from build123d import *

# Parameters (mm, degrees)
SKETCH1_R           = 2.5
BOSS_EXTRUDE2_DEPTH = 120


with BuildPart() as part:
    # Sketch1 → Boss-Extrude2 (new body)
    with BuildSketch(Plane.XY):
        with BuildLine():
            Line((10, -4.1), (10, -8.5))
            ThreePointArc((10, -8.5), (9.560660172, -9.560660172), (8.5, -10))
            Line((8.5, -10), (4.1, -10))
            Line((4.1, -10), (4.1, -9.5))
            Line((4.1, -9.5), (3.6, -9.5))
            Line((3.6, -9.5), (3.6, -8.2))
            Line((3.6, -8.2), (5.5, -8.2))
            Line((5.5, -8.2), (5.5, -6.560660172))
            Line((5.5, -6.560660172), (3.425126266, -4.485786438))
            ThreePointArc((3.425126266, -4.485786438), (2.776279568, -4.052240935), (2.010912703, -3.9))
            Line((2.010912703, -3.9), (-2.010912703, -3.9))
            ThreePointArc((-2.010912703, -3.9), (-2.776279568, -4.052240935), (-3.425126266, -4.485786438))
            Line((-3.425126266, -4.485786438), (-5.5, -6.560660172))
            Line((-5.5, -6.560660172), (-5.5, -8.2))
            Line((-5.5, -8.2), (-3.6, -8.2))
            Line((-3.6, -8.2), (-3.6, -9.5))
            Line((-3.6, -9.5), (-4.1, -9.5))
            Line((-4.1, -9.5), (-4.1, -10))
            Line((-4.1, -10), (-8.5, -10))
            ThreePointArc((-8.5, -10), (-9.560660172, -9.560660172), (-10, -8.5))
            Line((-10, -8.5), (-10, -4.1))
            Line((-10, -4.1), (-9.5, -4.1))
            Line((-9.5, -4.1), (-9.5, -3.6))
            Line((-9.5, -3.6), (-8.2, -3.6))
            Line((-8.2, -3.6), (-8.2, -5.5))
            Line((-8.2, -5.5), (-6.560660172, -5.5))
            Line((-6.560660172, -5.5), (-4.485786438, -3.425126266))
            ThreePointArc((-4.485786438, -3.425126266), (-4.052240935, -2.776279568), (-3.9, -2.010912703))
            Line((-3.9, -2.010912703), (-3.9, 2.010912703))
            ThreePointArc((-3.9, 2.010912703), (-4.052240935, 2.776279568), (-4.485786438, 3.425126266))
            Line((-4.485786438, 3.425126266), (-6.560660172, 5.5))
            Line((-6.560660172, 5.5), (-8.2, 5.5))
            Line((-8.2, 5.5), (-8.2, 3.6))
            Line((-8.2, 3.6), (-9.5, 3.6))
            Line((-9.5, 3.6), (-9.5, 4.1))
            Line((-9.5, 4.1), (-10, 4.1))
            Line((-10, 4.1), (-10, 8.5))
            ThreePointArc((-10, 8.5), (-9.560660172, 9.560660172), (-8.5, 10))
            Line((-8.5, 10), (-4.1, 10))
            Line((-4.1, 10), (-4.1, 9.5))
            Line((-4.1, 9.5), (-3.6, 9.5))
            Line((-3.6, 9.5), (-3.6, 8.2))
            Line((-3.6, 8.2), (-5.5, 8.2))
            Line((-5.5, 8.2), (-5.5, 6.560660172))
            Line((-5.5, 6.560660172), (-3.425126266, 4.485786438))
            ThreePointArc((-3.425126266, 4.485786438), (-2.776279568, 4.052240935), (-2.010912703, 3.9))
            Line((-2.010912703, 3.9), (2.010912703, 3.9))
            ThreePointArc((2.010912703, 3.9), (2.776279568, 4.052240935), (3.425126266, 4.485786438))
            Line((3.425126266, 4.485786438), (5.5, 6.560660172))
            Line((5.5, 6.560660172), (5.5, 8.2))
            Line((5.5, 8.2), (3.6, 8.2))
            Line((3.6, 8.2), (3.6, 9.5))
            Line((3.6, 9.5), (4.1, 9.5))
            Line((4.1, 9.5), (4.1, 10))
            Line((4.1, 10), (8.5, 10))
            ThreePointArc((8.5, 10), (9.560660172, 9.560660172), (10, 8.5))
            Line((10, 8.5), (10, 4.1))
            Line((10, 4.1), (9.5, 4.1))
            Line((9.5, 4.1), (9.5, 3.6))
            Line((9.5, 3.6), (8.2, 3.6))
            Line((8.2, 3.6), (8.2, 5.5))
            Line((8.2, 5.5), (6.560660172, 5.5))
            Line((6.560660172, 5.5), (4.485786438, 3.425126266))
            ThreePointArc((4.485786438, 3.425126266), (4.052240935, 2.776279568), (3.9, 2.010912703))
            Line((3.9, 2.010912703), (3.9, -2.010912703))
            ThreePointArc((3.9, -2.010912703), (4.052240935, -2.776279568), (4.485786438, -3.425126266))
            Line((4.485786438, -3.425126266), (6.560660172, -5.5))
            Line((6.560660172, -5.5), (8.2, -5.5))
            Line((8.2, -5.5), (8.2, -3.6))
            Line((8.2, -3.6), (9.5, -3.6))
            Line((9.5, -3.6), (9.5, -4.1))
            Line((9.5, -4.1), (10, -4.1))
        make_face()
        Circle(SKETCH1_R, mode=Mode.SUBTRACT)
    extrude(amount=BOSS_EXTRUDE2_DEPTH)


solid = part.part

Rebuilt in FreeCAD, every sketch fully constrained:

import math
import FreeCAD as App
import Part
import Sketcher
from FreeCAD import Vector
Q = App.Units.Quantity

doc = App.newDocument("Part")
body = doc.addObject("PartDesign::Body", "Body")

# Sketch on XY plane
sketch1 = body.newObject("Sketcher::SketchObject", "Sketch")
sketch1.AttachmentSupport = (doc.getObject("XY_Plane"), [""])
sketch1.MapMode = "FlatFace"
sketch1.addGeometry([
    Part.LineSegment(Vector(10, -8.5, 0), Vector(10, -4.1, 0)),  # 0
    Part.LineSegment(Vector(10, -4.1, 0), Vector(9.5, -4.1, 0)),  # 1
    Part.LineSegment(Vector(9.5, -4.1, 0), Vector(9.5, -3.6, 0)),  # 2
    Part.LineSegment(Vector(9.5, -3.6, 0), Vector(8.2, -3.6, 0)),  # 3
    Part.LineSegment(Vector(8.2, -3.6, 0), Vector(8.2, -5.5, 0)),  # 4
    Part.LineSegment(Vector(8.2, -5.5, 0), Vector(6.56066, -5.5, 0)),  # 5
    Part.LineSegment(Vector(6.56066, -5.5, 0), Vector(4.485786, -3.425126, 0)),  # 6
    Part.ArcOfCircle(Part.Circle(Vector(5.9, -2.010913, 0), Vector(0, 0, 1), 2), math.radians(180), math.radians(225)),  # 7
    Part.LineSegment(Vector(3.9, -2.010913, 0), Vector(3.9, 2.010913, 0)),  # 8
    Part.ArcOfCircle(Part.Circle(Vector(5.9, 2.010913, 0), Vector(0, 0, 1), 2), math.radians(135), math.radians(180)),  # 9
    Part.LineSegment(Vector(4.485786, 3.425126, 0), Vector(6.56066, 5.5, 0)),  # 10
    Part.LineSegment(Vector(6.56066, 5.5, 0), Vector(8.2, 5.5, 0)),  # 11
    Part.LineSegment(Vector(8.2, 5.5, 0), Vector(8.2, 3.6, 0)),  # 12
    Part.LineSegment(Vector(8.2, 3.6, 0), Vector(9.5, 3.6, 0)),  # 13
    Part.LineSegment(Vector(9.5, 3.6, 0), Vector(9.5, 4.1, 0)),  # 14
    Part.LineSegment(Vector(9.5, 4.1, 0), Vector(10, 4.1, 0)),  # 15
    Part.LineSegment(Vector(10, 4.1, 0), Vector(10, 8.5, 0)),  # 16
    Part.ArcOfCircle(Part.Circle(Vector(8.5, 8.5, 0), Vector(0, 0, 1), 1.5), math.radians(0), math.radians(90)),  # 17
    Part.LineSegment(Vector(8.5, 10, 0), Vector(4.1, 10, 0)),  # 18
    Part.LineSegment(Vector(4.1, 10, 0), Vector(4.1, 9.5, 0)),  # 19
    Part.LineSegment(Vector(4.1, 9.5, 0), Vector(3.6, 9.5, 0)),  # 20
    Part.LineSegment(Vector(3.6, 9.5, 0), Vector(3.6, 8.2, 0)),  # 21
    Part.LineSegment(Vector(3.6, 8.2, 0), Vector(5.5, 8.2, 0)),  # 22
    Part.LineSegment(Vector(5.5, 8.2, 0), Vector(5.5, 6.56066, 0)),  # 23
    Part.LineSegment(Vector(5.5, 6.56066, 0), Vector(3.425126, 4.485786, 0)),  # 24
    Part.ArcOfCircle(Part.Circle(Vector(2.010913, 5.9, 0), Vector(0, 0, 1), 2), math.radians(-90), math.radians(-45)),  # 25
    Part.LineSegment(Vector(2.010913, 3.9, 0), Vector(-2.010913, 3.9, 0)),  # 26
    Part.ArcOfCircle(Part.Circle(Vector(-2.010913, 5.9, 0), Vector(0, 0, 1), 2), math.radians(-135), math.radians(-90)),  # 27
    Part.LineSegment(Vector(-3.425126, 4.485786, 0), Vector(-5.5, 6.56066, 0)),  # 28
    Part.LineSegment(Vector(-5.5, 6.56066, 0), Vector(-5.5, 8.2, 0)),  # 29
    Part.LineSegment(Vector(-5.5, 8.2, 0), Vector(-3.6, 8.2, 0)),  # 30
    Part.LineSegment(Vector(-3.6, 8.2, 0), Vector(-3.6, 9.5, 0)),  # 31
    Part.LineSegment(Vector(-3.6, 9.5, 0), Vector(-4.1, 9.5, 0)),  # 32
    Part.LineSegment(Vector(-4.1, 9.5, 0), Vector(-4.1, 10, 0)),  # 33
    Part.LineSegment(Vector(-4.1, 10, 0), Vector(-8.5, 10, 0)),  # 34
    Part.ArcOfCircle(Part.Circle(Vector(-8.5, 8.5, 0), Vector(0, 0, 1), 1.5), math.radians(90), math.radians(180)),  # 35
    Part.LineSegment(Vector(-10, 8.5, 0), Vector(-10, 4.1, 0)),  # 36
    Part.LineSegment(Vector(-10, 4.1, 0), Vector(-9.5, 4.1, 0)),  # 37
    Part.LineSegment(Vector(-9.5, 4.1, 0), Vector(-9.5, 3.6, 0)),  # 38
    Part.LineSegment(Vector(-9.5, 3.6, 0), Vector(-8.2, 3.6, 0)),  # 39
    Part.LineSegment(Vector(-8.2, 3.6, 0), Vector(-8.2, 5.5, 0)),  # 40
    Part.LineSegment(Vector(-8.2, 5.5, 0), Vector(-6.56066, 5.5, 0)),  # 41
    Part.LineSegment(Vector(-6.56066, 5.5, 0), Vector(-4.485786, 3.425126, 0)),  # 42
    Part.ArcOfCircle(Part.Circle(Vector(-5.9, 2.010913, 0), Vector(0, 0, 1), 2), math.radians(0), math.radians(45)),  # 43
    Part.LineSegment(Vector(-3.9, 2.010913, 0), Vector(-3.9, -2.010913, 0)),  # 44
    Part.ArcOfCircle(Part.Circle(Vector(-5.9, -2.010913, 0), Vector(0, 0, 1), 2), math.radians(-45), math.radians(0)),  # 45
    Part.LineSegment(Vector(-4.485786, -3.425126, 0), Vector(-6.56066, -5.5, 0)),  # 46
    Part.LineSegment(Vector(-6.56066, -5.5, 0), Vector(-8.2, -5.5, 0)),  # 47
    Part.LineSegment(Vector(-8.2, -5.5, 0), Vector(-8.2, -3.6, 0)),  # 48
    Part.LineSegment(Vector(-8.2, -3.6, 0), Vector(-9.5, -3.6, 0)),  # 49
    Part.LineSegment(Vector(-9.5, -3.6, 0), Vector(-9.5, -4.1, 0)),  # 50
    Part.LineSegment(Vector(-9.5, -4.1, 0), Vector(-10, -4.1, 0)),  # 51
    Part.LineSegment(Vector(-10, -4.1, 0), Vector(-10, -8.5, 0)),  # 52
    Part.ArcOfCircle(Part.Circle(Vector(-8.5, -8.5, 0), Vector(0, 0, 1), 1.5), math.radians(180), math.radians(270)),  # 53
    Part.LineSegment(Vector(-8.5, -10, 0), Vector(-4.1, -10, 0)),  # 54
    Part.LineSegment(Vector(-4.1, -10, 0), Vector(-4.1, -9.5, 0)),  # 55
    Part.LineSegment(Vector(-4.1, -9.5, 0), Vector(-3.6, -9.5, 0)),  # 56
    Part.LineSegment(Vector(-3.6, -9.5, 0), Vector(-3.6, -8.2, 0)),  # 57
    Part.LineSegment(Vector(-3.6, -8.2, 0), Vector(-5.5, -8.2, 0)),  # 58
    Part.LineSegment(Vector(-5.5, -8.2, 0), Vector(-5.5, -6.56066, 0)),  # 59
    Part.LineSegment(Vector(-5.5, -6.56066, 0), Vector(-3.425126, -4.485786, 0)),  # 60
    Part.ArcOfCircle(Part.Circle(Vector(-2.010913, -5.9, 0), Vector(0, 0, 1), 2), math.radians(90), math.radians(135)),  # 61
    Part.LineSegment(Vector(-2.010913, -3.9, 0), Vector(2.010913, -3.9, 0)),  # 62
    Part.ArcOfCircle(Part.Circle(Vector(2.010913, -5.9, 0), Vector(0, 0, 1), 2), math.radians(45), math.radians(90)),  # 63
    Part.LineSegment(Vector(3.425126, -4.485786, 0), Vector(5.5, -6.56066, 0)),  # 64
    Part.LineSegment(Vector(5.5, -6.56066, 0), Vector(5.5, -8.2, 0)),  # 65
    Part.LineSegment(Vector(5.5, -8.2, 0), Vector(3.6, -8.2, 0)),  # 66
    Part.LineSegment(Vector(3.6, -8.2, 0), Vector(3.6, -9.5, 0)),  # 67
    Part.LineSegment(Vector(3.6, -9.5, 0), Vector(4.1, -9.5, 0)),  # 68
    Part.LineSegment(Vector(4.1, -9.5, 0), Vector(4.1, -10, 0)),  # 69
    Part.LineSegment(Vector(4.1, -10, 0), Vector(8.5, -10, 0)),  # 70
    Part.ArcOfCircle(Part.Circle(Vector(8.5, -8.5, 0), Vector(0, 0, 1), 1.5), math.radians(-90), math.radians(0)),  # 71
    Part.Circle(Vector(0, 0, 0), Vector(0, 0, 1), 2.5),  # 72
], False)
sketch1.addConstraint([
    Sketcher.Constraint("Coincident", 0, 2, 1, 1),
    Sketcher.Constraint("Coincident", 1, 2, 2, 1),
    Sketcher.Constraint("Coincident", 2, 2, 3, 1),
    Sketcher.Constraint("Coincident", 3, 2, 4, 1),
    Sketcher.Constraint("Coincident", 4, 2, 5, 1),
    Sketcher.Constraint("Coincident", 5, 2, 6, 1),
    Sketcher.Constraint("Tangent", 6, 2, 7, 2),
    Sketcher.Constraint("Tangent", 7, 1, 8, 1),
    Sketcher.Constraint("Tangent", 8, 2, 9, 2),
    Sketcher.Constraint("Tangent", 9, 1, 10, 1),
    Sketcher.Constraint("Coincident", 10, 2, 11, 1),
    Sketcher.Constraint("Coincident", 11, 2, 12, 1),
    Sketcher.Constraint("Coincident", 12, 2, 13, 1),
    Sketcher.Constraint("Coincident", 13, 2, 14, 1),
    Sketcher.Constraint("Coincident", 14, 2, 15, 1),
    Sketcher.Constraint("Coincident", 15, 2, 16, 1),
    Sketcher.Constraint("Tangent", 16, 2, 17, 1),
    Sketcher.Constraint("Tangent", 17, 2, 18, 1),
    Sketcher.Constraint("Coincident", 18, 2, 19, 1),
    Sketcher.Constraint("Coincident", 19, 2, 20, 1),
    Sketcher.Constraint("Coincident", 20, 2, 21, 1),
    Sketcher.Constraint("Coincident", 21, 2, 22, 1),
    Sketcher.Constraint("Coincident", 22, 2, 23, 1),
    Sketcher.Constraint("Coincident", 23, 2, 24, 1),
    Sketcher.Constraint("Tangent", 24, 2, 25, 2),
    Sketcher.Constraint("Tangent", 25, 1, 26, 1),
    Sketcher.Constraint("Tangent", 26, 2, 27, 2),
    Sketcher.Constraint("Tangent", 27, 1, 28, 1),
    Sketcher.Constraint("Coincident", 28, 2, 29, 1),
    Sketcher.Constraint("Coincident", 29, 2, 30, 1),
    Sketcher.Constraint("Coincident", 30, 2, 31, 1),
    Sketcher.Constraint("Coincident", 31, 2, 32, 1),
    Sketcher.Constraint("Coincident", 32, 2, 33, 1),
    Sketcher.Constraint("Coincident", 33, 2, 34, 1),
    Sketcher.Constraint("Tangent", 34, 2, 35, 1),
    Sketcher.Constraint("Tangent", 35, 2, 36, 1),
    Sketcher.Constraint("Coincident", 36, 2, 37, 1),
    Sketcher.Constraint("Coincident", 37, 2, 38, 1),
    Sketcher.Constraint("Coincident", 38, 2, 39, 1),
    Sketcher.Constraint("Coincident", 39, 2, 40, 1),
    Sketcher.Constraint("Coincident", 40, 2, 41, 1),
    Sketcher.Constraint("Coincident", 41, 2, 42, 1),
    Sketcher.Constraint("Tangent", 42, 2, 43, 2),
    Sketcher.Constraint("Tangent", 43, 1, 44, 1),
    Sketcher.Constraint("Tangent", 44, 2, 45, 2),
    Sketcher.Constraint("Tangent", 45, 1, 46, 1),
    Sketcher.Constraint("Coincident", 46, 2, 47, 1),
    Sketcher.Constraint("Coincident", 47, 2, 48, 1),
    Sketcher.Constraint("Coincident", 48, 2, 49, 1),
    Sketcher.Constraint("Coincident", 49, 2, 50, 1),
    Sketcher.Constraint("Coincident", 50, 2, 51, 1),
    Sketcher.Constraint("Coincident", 51, 2, 52, 1),
    Sketcher.Constraint("Tangent", 52, 2, 53, 1),
    Sketcher.Constraint("Tangent", 53, 2, 54, 1),
    Sketcher.Constraint("Coincident", 54, 2, 55, 1),
    Sketcher.Constraint("Coincident", 55, 2, 56, 1),
    Sketcher.Constraint("Coincident", 56, 2, 57, 1),
    Sketcher.Constraint("Coincident", 57, 2, 58, 1),
    Sketcher.Constraint("Coincident", 58, 2, 59, 1),
    Sketcher.Constraint("Coincident", 59, 2, 60, 1),
    Sketcher.Constraint("Tangent", 60, 2, 61, 2),
    Sketcher.Constraint("Tangent", 61, 1, 62, 1),
    Sketcher.Constraint("Tangent", 62, 2, 63, 2),
    Sketcher.Constraint("Tangent", 63, 1, 64, 1),
    Sketcher.Constraint("Coincident", 64, 2, 65, 1),
    Sketcher.Constraint("Coincident", 65, 2, 66, 1),
    Sketcher.Constraint("Coincident", 66, 2, 67, 1),
    Sketcher.Constraint("Coincident", 67, 2, 68, 1),
    Sketcher.Constraint("Coincident", 68, 2, 69, 1),
    Sketcher.Constraint("Coincident", 69, 2, 70, 1),
    Sketcher.Constraint("Tangent", 70, 2, 71, 1),
    Sketcher.Constraint("Tangent", 71, 2, 0, 1),
    Sketcher.Constraint("Vertical", 0),
    Sketcher.Constraint("Horizontal", 1),
    Sketcher.Constraint("Vertical", 2),
    Sketcher.Constraint("Horizontal", 3),
    Sketcher.Constraint("Vertical", 4),
    Sketcher.Constraint("Horizontal", 5),
    Sketcher.Constraint("Vertical", 8),
    Sketcher.Constraint("Horizontal", 11),
    Sketcher.Constraint("Vertical", 12),
    Sketcher.Constraint("Horizontal", 13),
    Sketcher.Constraint("Vertical", 14),
    Sketcher.Constraint("Horizontal", 15),
    Sketcher.Constraint("Vertical", 16),
    Sketcher.Constraint("Horizontal", 18),
    Sketcher.Constraint("Vertical", 19),
    Sketcher.Constraint("Horizontal", 20),
    Sketcher.Constraint("Vertical", 21),
    Sketcher.Constraint("Horizontal", 22),
    Sketcher.Constraint("Vertical", 23),
    Sketcher.Constraint("Horizontal", 26),
    Sketcher.Constraint("Vertical", 29),
    Sketcher.Constraint("Horizontal", 30),
    Sketcher.Constraint("Vertical", 31),
    Sketcher.Constraint("Horizontal", 32),
    Sketcher.Constraint("Vertical", 33),
    Sketcher.Constraint("Horizontal", 34),
    Sketcher.Constraint("Vertical", 36),
    Sketcher.Constraint("Horizontal", 37),
    Sketcher.Constraint("Vertical", 38),
    Sketcher.Constraint("Horizontal", 39),
    Sketcher.Constraint("Vertical", 40),
    Sketcher.Constraint("Horizontal", 41),
    Sketcher.Constraint("Vertical", 44),
    Sketcher.Constraint("Horizontal", 47),
    Sketcher.Constraint("Vertical", 48),
    Sketcher.Constraint("Horizontal", 49),
    Sketcher.Constraint("Vertical", 50),
    Sketcher.Constraint("Horizontal", 51),
    Sketcher.Constraint("Vertical", 52),
    Sketcher.Constraint("Horizontal", 54),
    Sketcher.Constraint("Vertical", 55),
    Sketcher.Constraint("Horizontal", 56),
    Sketcher.Constraint("Vertical", 57),
    Sketcher.Constraint("Horizontal", 58),
    Sketcher.Constraint("Vertical", 59),
    Sketcher.Constraint("Horizontal", 62),
    Sketcher.Constraint("Vertical", 65),
    Sketcher.Constraint("Horizontal", 66),
    Sketcher.Constraint("Vertical", 67),
    Sketcher.Constraint("Horizontal", 68),
    Sketcher.Constraint("Vertical", 69),
    Sketcher.Constraint("Horizontal", 70),
    Sketcher.Constraint("Coincident", 72, 3, -1, 1),
    Sketcher.Constraint("Equal", 7, 9),
    Sketcher.Constraint("Equal", 9, 25),
    Sketcher.Constraint("Equal", 25, 27),
    Sketcher.Constraint("Equal", 17, 35),
    Sketcher.Constraint("Equal", 27, 43),
    Sketcher.Constraint("Equal", 43, 45),
    Sketcher.Constraint("Equal", 35, 53),
    Sketcher.Constraint("Equal", 45, 61),
    Sketcher.Constraint("Equal", 61, 63),
    Sketcher.Constraint("Equal", 53, 71),
    Sketcher.Constraint("Symmetric", 7, 3, 43, 3, -1, 1),
    Sketcher.Constraint("Symmetric", 17, 3, 53, 3, -1, 1),
    Sketcher.Constraint("Symmetric", 25, 3, 61, 3, -1, 1),
    Sketcher.Constraint("Symmetric", 35, 3, 71, 3, -1, 1),
    Sketcher.Constraint("Symmetric", 1, 2, 37, 2, -1, 1),
    Sketcher.Constraint("Symmetric", 3, 2, 39, 2, -1, 1),
    Sketcher.Constraint("Symmetric", 5, 2, 41, 2, -1, 1),
    Sketcher.Constraint("Symmetric", 9, 1, 45, 1, -1, 1),
    Sketcher.Constraint("Symmetric", 11, 2, 47, 2, -1, 1),
    Sketcher.Constraint("Symmetric", 13, 2, 49, 2, -1, 1),
    Sketcher.Constraint("Symmetric", 19, 2, 55, 2, -1, 1),
    Sketcher.Constraint("Symmetric", 21, 2, 57, 2, -1, 1),
    Sketcher.Constraint("Symmetric", 23, 2, 59, 2, -1, 1),
    Sketcher.Constraint("Symmetric", 27, 1, 63, 1, -1, 1),
    Sketcher.Constraint("Symmetric", 29, 2, 65, 2, -1, 1),
    Sketcher.Constraint("Symmetric", 31, 2, 67, 2, -1, 1),
    Sketcher.Constraint("Symmetric", 17, 3, 35, 3, -2),
    Sketcher.Constraint("Symmetric", 24, 2, 27, 1, -2),
    Sketcher.Constraint("Symmetric", 22, 2, 29, 2, -2),
    Sketcher.Constraint("Symmetric", 20, 2, 31, 2, -2),
    Sketcher.Constraint("Symmetric", 14, 2, 37, 2, -2),
    Sketcher.Constraint("Symmetric", 12, 2, 39, 2, -2),
    Sketcher.Constraint("Symmetric", 10, 2, 41, 2, -2),
    Sketcher.Constraint("Perpendicular", 6, 10),
    Sketcher.Constraint("Parallel", 10, 24),
    Sketcher.Constraint("Perpendicular", 24, 28),
    Sketcher.Constraint("Horizontal", 1, 2, 50, 2),
    Sketcher.Constraint("Vertical", 33, 2, 54, 2),
    Sketcher.Constraint("Vertical", 19, 2, 68, 2),
    Sketcher.Constraint("Equal", 15, 20),
    Sketcher.Constraint("Equal", 70, 0),
    Sketcher.Constraint("Equal", 68, 2),
    Sketcher.Constraint("Equal", 66, 4),
    Sketcher.Constraint("Equal", 62, 8),
    Sketcher.Constraint("Equal", 14, 19),
    Sketcher.Constraint("Equal", 49, 21),
    Sketcher.Constraint("Equal", 47, 23),
    Sketcher.Constraint("Equal", 10, 24),
    Sketcher.Constraint("Diameter", 72, Q("5 mm")),
    Sketcher.Constraint("Radius", 7, Q("2 mm")),
    Sketcher.Constraint("Radius", 17, Q("1.5 mm")),
    Sketcher.Constraint("DistanceX", 1, 2, 1, 1, Q("0.5 mm")),
    Sketcher.Constraint("DistanceX", 3, 2, 3, 1, Q("1.3 mm")),
    Sketcher.Constraint("DistanceX", 18, 2, 18, 1, Q("4.4 mm")),
    Sketcher.Constraint("DistanceX", 22, 1, 22, 2, Q("1.9 mm")),
    Sketcher.Constraint("DistanceX", -1, 1, 0, 2, Q("10 mm")),
    Sketcher.Constraint("DistanceX", -1, 1, 7, 3, Q("5.9 mm")),
    Sketcher.Constraint("DistanceX", 5, 2, 5, 1, Q("1.63934 mm")),
])
pad1 = body.newObject("PartDesign::Pad", "Pad")
pad1.Profile = sketch1
pad1.Length = 120

doc.recompute()
